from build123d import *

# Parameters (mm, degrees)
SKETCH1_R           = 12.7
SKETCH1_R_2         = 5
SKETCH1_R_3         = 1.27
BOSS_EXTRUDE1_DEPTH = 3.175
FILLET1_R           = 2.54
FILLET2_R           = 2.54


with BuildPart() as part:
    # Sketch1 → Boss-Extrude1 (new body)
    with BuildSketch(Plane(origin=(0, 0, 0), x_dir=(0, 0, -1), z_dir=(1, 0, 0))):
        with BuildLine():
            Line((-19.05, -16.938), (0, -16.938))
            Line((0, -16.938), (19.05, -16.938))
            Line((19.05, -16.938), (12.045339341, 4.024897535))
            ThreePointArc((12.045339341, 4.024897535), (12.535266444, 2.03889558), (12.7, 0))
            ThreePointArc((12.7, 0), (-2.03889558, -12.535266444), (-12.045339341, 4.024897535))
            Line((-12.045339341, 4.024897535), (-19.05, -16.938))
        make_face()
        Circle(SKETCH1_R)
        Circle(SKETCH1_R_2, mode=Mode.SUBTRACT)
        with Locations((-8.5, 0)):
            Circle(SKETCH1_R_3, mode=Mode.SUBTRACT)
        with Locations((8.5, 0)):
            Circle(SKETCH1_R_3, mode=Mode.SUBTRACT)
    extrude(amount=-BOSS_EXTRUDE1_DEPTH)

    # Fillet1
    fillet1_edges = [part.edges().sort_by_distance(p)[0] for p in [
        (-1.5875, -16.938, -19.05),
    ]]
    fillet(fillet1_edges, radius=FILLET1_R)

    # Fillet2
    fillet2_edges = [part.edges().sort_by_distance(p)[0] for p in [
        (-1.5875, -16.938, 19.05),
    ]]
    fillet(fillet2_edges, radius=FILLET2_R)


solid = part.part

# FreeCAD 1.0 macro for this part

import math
import FreeCAD as App
import Part
import Sketcher
Q = App.Units.Quantity


def edges_at(feature, points):
    """Names of the edges that pass closest to the given points."""
    edges = feature.Shape.Edges
    near = lambda p: min(range(len(edges)), key=lambda i: edges[i].distToShape(Part.Vertex(*p))[0])
    return sorted({f"Edge{near(p) + 1}" for p in points})

doc = App.newDocument("Part")
body = doc.addObject("PartDesign::Body", "Body")

# Sketch on YZ plane
sketch1 = body.newObject("Sketcher::SketchObject", "Sketch")
sketch1.AttachmentSupport = (doc.getObject("YZ_Plane"), [""])
sketch1.MapMode = "FlatFace"
sketch1.addGeometry([
    Part.LineSegment(App.Vector(-16.9, 19.1, 0), App.Vector(-16.9, -19.1, 0)),  # 0
    Part.LineSegment(App.Vector(-16.9, -19.1, 0), App.Vector(4, -12, 0)),  # 1
    Part.ArcOfCircle(Part.Circle(App.Vector(0, 0, 0), App.Vector(0, 0, 1), 12.7), math.radians(-72), math.radians(72)),  # 2
    Part.LineSegment(App.Vector(4, 12, 0), App.Vector(-16.9, 19.1, 0)),  # 3
    Part.Circle(App.Vector(0, 8.5, 0), App.Vector(0, 0, 1), 1.3),  # 4
    Part.Circle(App.Vector(0, 0, 0), App.Vector(0, 0, 1), 5),  # 5
    Part.Circle(App.Vector(0, -8.5, 0), App.Vector(0, 0, 1), 1.3),  # 6
], False)
sketch1.addConstraint([
    Sketcher.Constraint("Coincident", 0, 2, 1, 1),
    Sketcher.Constraint("Tangent", 1, 2, 2, 1),
    Sketcher.Constraint("Tangent", 2, 2, 3, 1),
    Sketcher.Constraint("Coincident", 3, 2, 0, 1),
    Sketcher.Constraint("Vertical", 0),
    Sketcher.Constraint("Coincident", 2, 3, -1, 1),
    Sketcher.Constraint("Coincident", 5, 3, -1, 1),
    Sketcher.Constraint("Equal", 4, 6),
    Sketcher.Constraint("Symmetric", 4, 3, 6, 3, -1, 1),
    Sketcher.Constraint("PointOnObject", 4, 3, -2),
    Sketcher.Constraint("Vertical", 1, 2, 2, 2),
    Sketcher.Constraint("Diameter", 4, Q("0.1 in")),
    Sketcher.Constraint("Radius", 2, Q("0.5 in")),
    Sketcher.Constraint("DistanceY", 0, 2, 0, 1, Q("1.5 in")),
    Sketcher.Constraint("Diameter", 5, 10.0),
    Sketcher.Constraint("DistanceY", -1, 1, 4, 3, 8.5),
    Sketcher.Constraint("DistanceX", 0, 2, -1, 1, 16.938),
])
pad1 = body.newObject("PartDesign::Pad", "Pad")
pad1.Profile = sketch1
pad1.Length = Q("0.125 in")
pad1.Reversed = True
doc.recompute()

fillet = body.newObject("PartDesign::Fillet", "Fillet")
fillet.Base = (pad1, edges_at(pad1, [(-1.587, -16.938, -19.05)]))
fillet.Radius = Q("0.1 in")
doc.recompute()

fillet2 = body.newObject("PartDesign::Fillet", "Fillet001")
fillet2.Base = (fillet, edges_at(fillet, [(-1.587, -16.938, 19.05)]))
fillet2.Radius = Q("0.1 in")

doc.recompute()
